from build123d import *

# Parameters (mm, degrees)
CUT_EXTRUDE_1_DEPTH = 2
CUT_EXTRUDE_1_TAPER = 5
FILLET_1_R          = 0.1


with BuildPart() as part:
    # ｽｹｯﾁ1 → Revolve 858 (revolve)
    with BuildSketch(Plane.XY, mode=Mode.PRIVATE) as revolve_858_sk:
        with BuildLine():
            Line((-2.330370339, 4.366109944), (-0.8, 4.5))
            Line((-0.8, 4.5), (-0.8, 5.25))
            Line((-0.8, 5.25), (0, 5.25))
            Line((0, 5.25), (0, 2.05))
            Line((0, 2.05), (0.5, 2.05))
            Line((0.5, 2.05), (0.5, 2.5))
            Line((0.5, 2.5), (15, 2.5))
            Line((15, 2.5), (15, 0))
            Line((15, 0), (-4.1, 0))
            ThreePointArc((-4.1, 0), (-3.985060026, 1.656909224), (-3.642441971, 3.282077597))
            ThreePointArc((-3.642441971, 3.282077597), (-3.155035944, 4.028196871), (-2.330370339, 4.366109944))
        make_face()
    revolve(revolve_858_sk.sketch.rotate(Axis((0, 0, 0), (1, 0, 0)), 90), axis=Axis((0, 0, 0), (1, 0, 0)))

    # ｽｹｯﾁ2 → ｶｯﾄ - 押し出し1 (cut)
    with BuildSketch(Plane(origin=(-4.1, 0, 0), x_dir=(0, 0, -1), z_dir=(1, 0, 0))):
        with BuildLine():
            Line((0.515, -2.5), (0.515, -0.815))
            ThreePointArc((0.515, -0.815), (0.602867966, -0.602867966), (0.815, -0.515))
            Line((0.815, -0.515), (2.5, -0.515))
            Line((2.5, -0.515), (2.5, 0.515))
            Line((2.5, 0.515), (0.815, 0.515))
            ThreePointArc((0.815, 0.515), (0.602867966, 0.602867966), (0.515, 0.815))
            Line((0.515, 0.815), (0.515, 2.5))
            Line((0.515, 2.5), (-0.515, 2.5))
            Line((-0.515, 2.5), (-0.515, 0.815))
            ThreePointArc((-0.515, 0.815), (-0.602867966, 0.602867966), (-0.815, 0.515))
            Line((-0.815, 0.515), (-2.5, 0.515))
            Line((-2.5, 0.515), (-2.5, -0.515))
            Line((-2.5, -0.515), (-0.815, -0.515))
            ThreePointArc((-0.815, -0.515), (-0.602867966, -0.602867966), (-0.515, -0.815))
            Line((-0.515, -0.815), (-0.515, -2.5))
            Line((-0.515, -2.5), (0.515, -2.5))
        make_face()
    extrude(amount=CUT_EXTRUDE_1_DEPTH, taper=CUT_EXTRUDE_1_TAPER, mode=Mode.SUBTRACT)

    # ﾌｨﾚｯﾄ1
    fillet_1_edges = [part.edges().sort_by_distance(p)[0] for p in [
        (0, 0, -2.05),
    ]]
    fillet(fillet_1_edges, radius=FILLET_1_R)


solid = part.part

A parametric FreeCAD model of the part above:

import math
import FreeCAD as App
import Part
import Sketcher
from FreeCAD import Vector
Q = App.Units.Quantity


def edges_at(feature, points):
    """Names of the edges that pass closest to the given points."""
    edges = feature.Shape.Edges
    near = lambda p: min(range(len(edges)), key=lambda i: edges[i].distToShape(Part.Vertex(*p))[0])
    return sorted({f"Edge{near(p) + 1}" for p in points})

doc = App.newDocument("Part")
body = doc.addObject("PartDesign::Body", "Body")

# Sketch on XY plane
sketch1 = doc.addObject("Sketcher::SketchObject", "Sketch")
body.addObject(sketch1)
sketch1.AttachmentSupport = (doc.XY_Plane, [""])
sketch1.MapMode = "FlatFace"
sketch1.addGeometry(Part.LineSegment(Vector(-0.8, 4.5, 0), Vector(-2.33037, 4.36611, 0)), False)
sketch1.addGeometry(Part.ArcOfCircle(Part.Circle(Vector(-2.199637, 2.871818, 0), Vector(0, 0, 1), 1.5), math.radians(95), math.radians(164.126971)), False)
sketch1.addGeometry(Part.ArcOfCircle(Part.Circle(Vector(7.9, 0, 0), Vector(0, 0, 1), 12), math.radians(164.126971), math.radians(180)), False)
sketch1.addGeometry(Part.LineSegment(Vector(-4.1, 0, 0), Vector(15, 0, 0)), False)
sketch1.addGeometry(Part.LineSegment(Vector(15, 0, 0), Vector(15, 2.5, 0)), False)
sketch1.addGeometry(Part.LineSegment(Vector(15, 2.5, 0), Vector(0.5, 2.5, 0)), False)
sketch1.addGeometry(Part.LineSegment(Vector(0.5, 2.5, 0), Vector(0.5, 2.05, 0)), False)
sketch1.addGeometry(Part.LineSegment(Vector(0.5, 2.05, 0), Vector(0, 2.05, 0)), False)
sketch1.addGeometry(Part.LineSegment(Vector(0, 2.05, 0), Vector(0, 5.25, 0)), False)
sketch1.addGeometry(Part.LineSegment(Vector(0, 5.25, 0), Vector(-0.8, 5.25, 0)), False)
sketch1.addGeometry(Part.LineSegment(Vector(-0.8, 5.25, 0), Vector(-0.8, 4.5, 0)), False)
sketch1.addConstraint(Sketcher.Constraint("Tangent", 0, 2, 1, 1))
sketch1.addConstraint(Sketcher.Constraint("Tangent", 1, 2, 2, 1))
sketch1.addConstraint(Sketcher.Constraint("Coincident", 2, 2, 3, 1))
sketch1.addConstraint(Sketcher.Constraint("Coincident", 3, 2, 4, 1))
sketch1.addConstraint(Sketcher.Constraint("Coincident", 4, 2, 5, 1))
sketch1.addConstraint(Sketcher.Constraint("Coincident", 5, 2, 6, 1))
sketch1.addConstraint(Sketcher.Constraint("Coincident", 6, 2, 7, 1))
sketch1.addConstraint(Sketcher.Constraint("Coincident", 7, 2, 8, 1))
sketch1.addConstraint(Sketcher.Constraint("Coincident", 8, 2, 9, 1))
sketch1.addConstraint(Sketcher.Constraint("Coincident", 9, 2, 10, 1))
sketch1.addConstraint(Sketcher.Constraint("Coincident", 10, 2, 0, 1))
sketch1.addConstraint(Sketcher.Constraint("Horizontal", 3))
sketch1.addConstraint(Sketcher.Constraint("Vertical", 4))
sketch1.addConstraint(Sketcher.Constraint("Horizontal", 5))
sketch1.addConstraint(Sketcher.Constraint("Vertical", 6))
sketch1.addConstraint(Sketcher.Constraint("Horizontal", 7))
sketch1.addConstraint(Sketcher.Constraint("Vertical", 8))
sketch1.addConstraint(Sketcher.Constraint("Horizontal", 9))
sketch1.addConstraint(Sketcher.Constraint("Vertical", 10))
sketch1.addConstraint(Sketcher.Constraint("PointOnObject", 2, 3, -1))
sketch1.addConstraint(Sketcher.Constraint("PointOnObject", 2, 2, -1))
sketch1.addConstraint(Sketcher.Constraint("PointOnObject", 7, 2, -2))
sketch1.addConstraint(Sketcher.Constraint("Radius", 2, 12.0))
sketch1.addConstraint(Sketcher.Constraint("Radius", 1, 1.5))
sketch1.addConstraint(Sketcher.Constraint("Angle", 0, Q("-175 deg")))
sketch1.addConstraint(Sketcher.Constraint("DistanceX", 3, 1, 3, 2, 19.1))
sketch1.addConstraint(Sketcher.Constraint("DistanceX", 5, 2, 5, 1, 14.5))
sketch1.addConstraint(Sketcher.Constraint("DistanceX", 7, 2, 7, 1, 0.5))
sketch1.addConstraint(Sketcher.Constraint("DistanceX", 9, 2, 9, 1, 0.8))
sketch1.addConstraint(Sketcher.Constraint("DistanceY", 4, 1, 4, 2, 2.5))
sketch1.addConstraint(Sketcher.Constraint("DistanceY", 8, 1, 8, 2, 3.2))
sketch1.addConstraint(Sketcher.Constraint("DistanceY", 5, 2, 10, 2, 2.0))
sketch1.addConstraint(Sketcher.Constraint("DistanceY", 6, 2, 6, 1, 0.45))
revolution = doc.addObject("PartDesign::Revolution", "Revolution")
body.addObject(revolution)
revolution.Profile = sketch1
revolution.ReferenceAxis = (sketch1, ["H_Axis"])
revolution.Angle = 360

# Sketch on YZ plane
sketch2 = doc.addObject("Sketcher::SketchObject", "Sketch001")
body.addObject(sketch2)
sketch2.AttachmentSupport = (doc.YZ_Plane, [""])
sketch2.MapMode = "FlatFace"
sketch2.AttachmentOffset = App.Placement(Vector(0, 0, -4.1), App.Rotation())
sketch2.addGeometry(Part.LineSegment(Vector(-2.5, -0.515, 0), Vector(-0.815, -0.515, 0)), False)
sketch2.addGeometry(Part.ArcOfCircle(Part.Circle(Vector(-0.815, -0.815, 0), Vector(0, 0, 1), 0.3), math.radians(0), math.radians(90)), False)
sketch2.addGeometry(Part.LineSegment(Vector(-0.515, -0.815, 0), Vector(-0.515, -2.5, 0)), False)
sketch2.addGeometry(Part.LineSegment(Vector(-0.515, -2.5, 0), Vector(0.515, -2.5, 0)), False)
sketch2.addGeometry(Part.LineSegment(Vector(0.515, -2.5, 0), Vector(0.515, -0.815, 0)), False)
sketch2.addGeometry(Part.ArcOfCircle(Part.Circle(Vector(0.815, -0.815, 0), Vector(0, 0, 1), 0.3), math.radians(90), math.radians(180)), False)
sketch2.addGeometry(Part.LineSegment(Vector(0.815, -0.515, 0), Vector(2.5, -0.515, 0)), False)
sketch2.addGeometry(Part.LineSegment(Vector(2.5, -0.515, 0), Vector(2.5, 0.515, 0)), False)
sketch2.addGeometry(Part.LineSegment(Vector(2.5, 0.515, 0), Vector(0.815, 0.515, 0)), False)
sketch2.addGeometry(Part.ArcOfCircle(Part.Circle(Vector(0.815, 0.815, 0), Vector(0, 0, 1), 0.3), math.radians(-180), math.radians(-90)), False)
sketch2.addGeometry(Part.LineSegment(Vector(0.515, 0.815, 0), Vector(0.515, 2.5, 0)), False)
sketch2.addGeometry(Part.LineSegment(Vector(0.515, 2.5, 0), Vector(-0.515, 2.5, 0)), False)
sketch2.addGeometry(Part.LineSegment(Vector(-0.515, 2.5, 0), Vector(-0.515, 0.815, 0)), False)
sketch2.addGeometry(Part.ArcOfCircle(Part.Circle(Vector(-0.815, 0.815, 0), Vector(0, 0, 1), 0.3), math.radians(-90), math.radians(0)), False)
sketch2.addGeometry(Part.LineSegment(Vector(-0.815, 0.515, 0), Vector(-2.5, 0.515, 0)), False)
sketch2.addGeometry(Part.LineSegment(Vector(-2.5, 0.515, 0), Vector(-2.5, -0.515, 0)), False)
sketch2.addConstraint(Sketcher.Constraint("Tangent", 0, 2, 1, 2))
sketch2.addConstraint(Sketcher.Constraint("Tangent", 1, 1, 2, 1))
sketch2.addConstraint(Sketcher.Constraint("Coincident", 2, 2, 3, 1))
sketch2.addConstraint(Sketcher.Constraint("Coincident", 3, 2, 4, 1))
sketch2.addConstraint(Sketcher.Constraint("Tangent", 4, 2, 5, 2))
sketch2.addConstraint(Sketcher.Constraint("Tangent", 5, 1, 6, 1))
sketch2.addConstraint(Sketcher.Constraint("Coincident", 6, 2, 7, 1))
sketch2.addConstraint(Sketcher.Constraint("Coincident", 7, 2, 8, 1))
sketch2.addConstraint(Sketcher.Constraint("Tangent", 8, 2, 9, 2))
sketch2.addConstraint(Sketcher.Constraint("Tangent", 9, 1, 10, 1))
sketch2.addConstraint(Sketcher.Constraint("Coincident", 10, 2, 11, 1))
sketch2.addConstraint(Sketcher.Constraint("Coincident", 11, 2, 12, 1))
sketch2.addConstraint(Sketcher.Constraint("Tangent", 12, 2, 13, 2))
sketch2.addConstraint(Sketcher.Constraint("Tangent", 13, 1, 14, 1))
sketch2.addConstraint(Sketcher.Constraint("Coincident", 14, 2, 15, 1))
sketch2.addConstraint(Sketcher.Constraint("Coincident", 15, 2, 0, 1))
sketch2.addConstraint(Sketcher.Constraint("Horizontal", 0))
sketch2.addConstraint(Sketcher.Constraint("Vertical", 2))
sketch2.addConstraint(Sketcher.Constraint("Horizontal", 3))
sketch2.addConstraint(Sketcher.Constraint("Vertical", 4))
sketch2.addConstraint(Sketcher.Constraint("Horizontal", 6))
sketch2.addConstraint(Sketcher.Constraint("Vertical", 7))
sketch2.addConstraint(Sketcher.Constraint("Horizontal", 8))
sketch2.addConstraint(Sketcher.Constraint("Vertical", 10))
sketch2.addConstraint(Sketcher.Constraint("Horizontal", 11))
sketch2.addConstraint(Sketcher.Constraint("Vertical", 12))
sketch2.addConstraint(Sketcher.Constraint("Horizontal", 14))
sketch2.addConstraint(Sketcher.Constraint("Vertical", 15))
sketch2.addConstraint(Sketcher.Constraint("Equal", 1, 5))
sketch2.addConstraint(Sketcher.Constraint("Equal", 5, 9))
sketch2.addConstraint(Sketcher.Constraint("Equal", 9, 13))
sketch2.addConstraint(Sketcher.Constraint("Symmetric", 1, 3, 9, 3, -1, 1))
sketch2.addConstraint(Sketcher.Constraint("Symmetric", 5, 3, 13, 3, -1, 1))
sketch2.addConstraint(Sketcher.Constraint("Symmetric", 1, 3, 5, 3, -2))
sketch2.addConstraint(Sketcher.Constraint("Equal", 0, 6))
sketch2.addConstraint(Sketcher.Constraint("Equal", 14, 2))
sketch2.addConstraint(Sketcher.Constraint("Equal", 11, 7))
sketch2.addConstraint(Sketcher.Constraint("Equal", 4, 10))
sketch2.addConstraint(Sketcher.Constraint("Radius", 1, 0.3))
sketch2.addConstraint(Sketcher.Constraint("DistanceX", 3, 1, 3, 2, 1.03))
sketch2.addConstraint(Sketcher.Constraint("DistanceY", 2, 2, -1, 1, 2.5))
pocket1 = doc.addObject("PartDesign::Pocket", "Pocket")
body.addObject(pocket1)
pocket1.Profile = sketch2
pocket1.Length = 2
pocket1.Reversed = True
pocket1.TaperAngle = -5
doc.recompute()

fillet = doc.addObject("PartDesign::Fillet", "Fillet")
body.addObject(fillet)
fillet.Base = (pocket1, edges_at(pocket1, [(0, 0, -2.05)]))
fillet.Radius = 0.1

doc.recompute()
